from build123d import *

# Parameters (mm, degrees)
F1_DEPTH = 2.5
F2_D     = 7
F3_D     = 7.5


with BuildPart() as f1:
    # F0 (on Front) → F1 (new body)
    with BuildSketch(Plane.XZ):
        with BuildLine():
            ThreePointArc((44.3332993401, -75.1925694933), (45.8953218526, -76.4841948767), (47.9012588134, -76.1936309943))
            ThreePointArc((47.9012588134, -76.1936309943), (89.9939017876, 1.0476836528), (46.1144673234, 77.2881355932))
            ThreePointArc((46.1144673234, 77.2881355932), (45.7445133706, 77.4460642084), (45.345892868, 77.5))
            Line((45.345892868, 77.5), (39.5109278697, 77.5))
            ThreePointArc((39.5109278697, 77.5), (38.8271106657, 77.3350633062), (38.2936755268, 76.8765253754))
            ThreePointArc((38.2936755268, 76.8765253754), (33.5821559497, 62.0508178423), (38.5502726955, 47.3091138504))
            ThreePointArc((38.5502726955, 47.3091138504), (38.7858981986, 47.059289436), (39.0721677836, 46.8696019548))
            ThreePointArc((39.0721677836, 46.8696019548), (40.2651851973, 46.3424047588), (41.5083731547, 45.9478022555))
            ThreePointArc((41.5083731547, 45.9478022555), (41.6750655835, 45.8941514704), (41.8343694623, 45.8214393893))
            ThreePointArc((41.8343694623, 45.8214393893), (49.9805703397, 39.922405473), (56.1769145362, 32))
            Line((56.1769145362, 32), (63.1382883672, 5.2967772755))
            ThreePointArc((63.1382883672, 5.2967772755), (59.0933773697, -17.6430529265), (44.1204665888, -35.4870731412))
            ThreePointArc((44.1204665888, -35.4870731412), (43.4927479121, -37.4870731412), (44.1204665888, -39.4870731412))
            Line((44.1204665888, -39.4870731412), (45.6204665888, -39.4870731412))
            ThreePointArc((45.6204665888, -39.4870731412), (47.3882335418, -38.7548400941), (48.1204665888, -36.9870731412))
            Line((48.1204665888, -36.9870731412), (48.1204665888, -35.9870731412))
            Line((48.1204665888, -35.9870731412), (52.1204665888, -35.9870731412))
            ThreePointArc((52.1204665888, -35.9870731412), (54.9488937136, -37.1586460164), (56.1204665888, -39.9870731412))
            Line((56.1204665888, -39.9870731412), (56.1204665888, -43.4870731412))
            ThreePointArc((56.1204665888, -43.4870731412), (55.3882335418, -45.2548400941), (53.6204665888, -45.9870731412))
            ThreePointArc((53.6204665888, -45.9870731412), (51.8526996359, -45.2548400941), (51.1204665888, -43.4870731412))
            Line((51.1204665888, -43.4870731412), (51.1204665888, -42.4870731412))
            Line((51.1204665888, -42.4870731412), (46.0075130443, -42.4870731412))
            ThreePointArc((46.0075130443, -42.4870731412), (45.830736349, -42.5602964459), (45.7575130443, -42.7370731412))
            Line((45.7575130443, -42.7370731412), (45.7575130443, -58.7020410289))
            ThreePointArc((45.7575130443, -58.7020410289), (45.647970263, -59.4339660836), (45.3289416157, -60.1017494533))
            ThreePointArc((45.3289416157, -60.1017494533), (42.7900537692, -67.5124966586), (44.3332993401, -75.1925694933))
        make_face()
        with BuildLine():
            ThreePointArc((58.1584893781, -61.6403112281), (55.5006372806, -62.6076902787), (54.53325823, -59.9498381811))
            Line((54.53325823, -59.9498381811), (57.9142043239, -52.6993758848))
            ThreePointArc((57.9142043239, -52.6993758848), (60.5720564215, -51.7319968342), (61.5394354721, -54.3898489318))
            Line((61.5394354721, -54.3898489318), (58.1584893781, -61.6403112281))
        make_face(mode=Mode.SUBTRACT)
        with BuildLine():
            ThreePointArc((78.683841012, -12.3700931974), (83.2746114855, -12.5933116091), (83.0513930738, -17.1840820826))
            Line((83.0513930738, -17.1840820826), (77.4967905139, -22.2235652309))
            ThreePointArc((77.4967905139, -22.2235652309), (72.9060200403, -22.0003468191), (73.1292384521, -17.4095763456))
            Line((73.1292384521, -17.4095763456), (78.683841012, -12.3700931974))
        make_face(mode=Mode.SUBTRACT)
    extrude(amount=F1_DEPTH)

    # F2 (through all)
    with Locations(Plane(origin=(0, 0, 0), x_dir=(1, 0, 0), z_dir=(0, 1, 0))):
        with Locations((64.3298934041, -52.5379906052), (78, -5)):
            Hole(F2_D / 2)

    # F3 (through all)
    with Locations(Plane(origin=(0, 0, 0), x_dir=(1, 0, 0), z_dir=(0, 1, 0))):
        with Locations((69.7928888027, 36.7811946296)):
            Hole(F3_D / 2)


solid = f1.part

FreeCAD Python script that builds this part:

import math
import FreeCAD as App
import Part
import Sketcher
from FreeCAD import Vector
Q = App.Units.Quantity

doc = App.newDocument("Part")
body = doc.addObject("PartDesign::Body", "Body")

# Sketch on XZ plane
sketch1 = body.newObject("Sketcher::SketchObject", "Sketch")
sketch1.AttachmentSupport = (doc.getObject("XZ_Plane"), [""])
sketch1.MapMode = "FlatFace"
sketch1.addGeometry(Part.ArcOfCircle(Part.Circle(Vector(46.570668, -74.077141, 0), Vector(0, 0, 1), 2.5), math.radians(-153.501697), math.radians(-57.843329)), False)
sketch1.addGeometry(Part.ArcOfCircle(Part.Circle(Vector(0, 0, 0), Vector(0, 0, 1), 90), math.radians(-57.843329), math.radians(59.177311)), False)
sketch1.addGeometry(Part.ArcOfCircle(Part.Circle(Vector(45.345893, 76, 0), Vector(0, 0, 1), 1.5), math.radians(59.177311), math.radians(90)), False)
sketch1.addGeometry(Part.LineSegment(Vector(45.345893, 77.5, 0), Vector(39.510928, 77.5, 0)), False)
sketch1.addGeometry(Part.ArcOfCircle(Part.Circle(Vector(39.510928, 76, 0), Vector(0, 0, 1), 1.5), math.radians(90), math.radians(144.242899)), False)
sketch1.addGeometry(Part.ArcOfCircle(Part.Circle(Vector(58.581215, 62.267769, 0), Vector(0, 0, 1), 25), math.radians(144.242899), math.radians(216.751545)), False)
sketch1.addGeometry(Part.ArcOfCircle(Part.Circle(Vector(39.752129, 48.206633, 0), Vector(0, 0, 1), 1.5), math.radians(-143.248455), math.radians(-116.956096)), False)
sketch1.addGeometry(Part.ArcOfCircle(Part.Circle(Vector(44.511859, 57.565852, 0), Vector(0, 0, 1), 12), math.radians(-116.956096), math.radians(-104.494703)), False)
sketch1.addGeometry(Part.ArcOfCircle(Part.Circle(Vector(41.132937, 44.495546, 0), Vector(0, 0, 1), 1.5), math.radians(62.119995), math.radians(75.505297)), False)
sketch1.addGeometry(Part.ArcOfCircle(Part.Circle(Vector(25, 14, 0), Vector(0, 0, 1), 36), math.radians(30), math.radians(62.119995)), False)
sketch1.addGeometry(Part.LineSegment(Vector(56.176915, 32, 0), Vector(63.138288, 5.296777, 0)), False)
sketch1.addGeometry(Part.ArcOfCircle(Part.Circle(Vector(18.309527, 1.374769, 0), Vector(0, 0, 1), 45), math.radians(-55), math.radians(5)), False)
sketch1.addGeometry(Part.ArcOfCircle(Part.Circle(Vector(46.992748, -37.487073, 0), Vector(0, 0, 1), 3.5), math.radians(145.150095), math.radians(214.849905)), False)
sketch1.addGeometry(Part.LineSegment(Vector(44.120467, -39.487073, 0), Vector(45.620467, -39.487073, 0)), False)
sketch1.addGeometry(Part.ArcOfCircle(Part.Circle(Vector(45.620467, -36.987073, 0), Vector(0, 0, 1), 2.5), math.radians(-90), math.radians(0)), False)
sketch1.addGeometry(Part.LineSegment(Vector(48.120467, -36.987073, 0), Vector(48.120467, -35.987073, 0)), False)
sketch1.addGeometry(Part.LineSegment(Vector(48.120467, -35.987073, 0), Vector(52.120467, -35.987073, 0)), False)
sketch1.addGeometry(Part.ArcOfCircle(Part.Circle(Vector(52.120467, -39.987073, 0), Vector(0, 0, 1), 4), math.radians(0), math.radians(90)), False)
sketch1.addGeometry(Part.LineSegment(Vector(56.120467, -39.987073, 0), Vector(56.120467, -43.487073, 0)), False)
sketch1.addGeometry(Part.ArcOfCircle(Part.Circle(Vector(53.620467, -43.487073, 0), Vector(0, 0, 1), 2.5), math.radians(-90), math.radians(0)), False)
sketch1.addGeometry(Part.ArcOfCircle(Part.Circle(Vector(53.620467, -43.487073, 0), Vector(0, 0, 1), 2.5), math.radians(180), math.radians(270)), False)
sketch1.addGeometry(Part.LineSegment(Vector(51.120467, -43.487073, 0), Vector(51.120467, -42.487073, 0)), False)
sketch1.addGeometry(Part.LineSegment(Vector(51.120467, -42.487073, 0), Vector(46.007513, -42.487073, 0)), False)
sketch1.addGeometry(Part.ArcOfCircle(Part.Circle(Vector(46.007513, -42.737073, 0), Vector(0, 0, 1), 0.25), math.radians(90), math.radians(180)), False)
sketch1.addGeometry(Part.LineSegment(Vector(45.757513, -42.737073, 0), Vector(45.757513, -58.702041, 0)), False)
sketch1.addGeometry(Part.ArcOfCircle(Part.Circle(Vector(43.257513, -58.702041, 0), Vector(0, 0, 1), 2.5), math.radians(-34.047732), math.radians(0)), False)
sketch1.addGeometry(Part.ArcOfCircle(Part.Circle(Vector(57.757513, -68.5, 0), Vector(0, 0, 1), 15), math.radians(145.952268), math.radians(206.498303)), False)
sketch1.addGeometry(Part.LineSegment(Vector(61.539435, -54.389849, 0), Vector(58.158489, -61.640311, 0)), False)
sketch1.addGeometry(Part.ArcOfCircle(Part.Circle(Vector(56.345874, -60.795075, 0), Vector(0, 0, 1), 2), math.radians(155), math.radians(335)), False)
sketch1.addGeometry(Part.LineSegment(Vector(54.533258, -59.949838, 0), Vector(57.914204, -52.699376, 0)), False)
sketch1.addGeometry(Part.ArcOfCircle(Part.Circle(Vector(59.72682, -53.544612, 0), Vector(0, 0, 1), 2), math.radians(-25), math.radians(155)), False)
sketch1.addGeometry(Part.LineSegment(Vector(73.129238, -17.409576, 0), Vector(78.683841, -12.370093, 0)), False)
sketch1.addGeometry(Part.ArcOfCircle(Part.Circle(Vector(80.867617, -14.777088, 0), Vector(0, 0, 1), 3.25), math.radians(-47.783718), math.radians(132.216282)), False)
sketch1.addGeometry(Part.LineSegment(Vector(83.051393, -17.184082, 0), Vector(77.496791, -22.223565, 0)), False)
sketch1.addGeometry(Part.ArcOfCircle(Part.Circle(Vector(75.313014, -19.816571, 0), Vector(0, 0, 1), 3.25), math.radians(132.216283), math.radians(312.216282)), False)
sketch1.addConstraint(Sketcher.Constraint("Tangent", 0, 2, 1, 1))
sketch1.addConstraint(Sketcher.Constraint("Tangent", 1, 2, 2, 1))
sketch1.addConstraint(Sketcher.Constraint("Tangent", 2, 2, 3, 1))
sketch1.addConstraint(Sketcher.Constraint("Tangent", 3, 2, 4, 1))
sketch1.addConstraint(Sketcher.Constraint("Tangent", 4, 2, 5, 1))
sketch1.addConstraint(Sketcher.Constraint("Tangent", 5, 2, 6, 1))
sketch1.addConstraint(Sketcher.Constraint("Tangent", 6, 2, 7, 1))
sketch1.addConstraint(Sketcher.Constraint("Tangent", 7, 2, 8, 2))
sketch1.addConstraint(Sketcher.Constraint("Tangent", 8, 1, 9, 2))
sketch1.addConstraint(Sketcher.Constraint("Coincident", 9, 1, 10, 1))
sketch1.addConstraint(Sketcher.Constraint("Coincident", 10, 2, 11, 2))
sketch1.addConstraint(Sketcher.Constraint("Coincident", 11, 1, 12, 1))
sketch1.addConstraint(Sketcher.Constraint("Coincident", 12, 2, 13, 1))
sketch1.addConstraint(Sketcher.Constraint("Tangent", 13, 2, 14, 1))
sketch1.addConstraint(Sketcher.Constraint("Tangent", 14, 2, 15, 1))
sketch1.addConstraint(Sketcher.Constraint("Coincident", 15, 2, 16, 1))
sketch1.addConstraint(Sketcher.Constraint("Tangent", 16, 2, 17, 2))
sketch1.addConstraint(Sketcher.Constraint("Tangent", 17, 1, 18, 1))
sketch1.addConstraint(Sketcher.Constraint("Tangent", 18, 2, 19, 2))
sketch1.addConstraint(Sketcher.Constraint("Tangent", 19, 1, 20, 2))
sketch1.addConstraint(Sketcher.Constraint("Tangent", 20, 1, 21, 1))
sketch1.addConstraint(Sketcher.Constraint("Coincident", 21, 2, 22, 1))
sketch1.addConstraint(Sketcher.Constraint("Tangent", 22, 2, 23, 1))
sketch1.addConstraint(Sketcher.Constraint("Tangent", 23, 2, 24, 1))
sketch1.addConstraint(Sketcher.Constraint("Tangent", 24, 2, 25, 2))
sketch1.addConstraint(Sketcher.Constraint("Tangent", 25, 1, 26, 1))
sketch1.addConstraint(Sketcher.Constraint("Tangent", 26, 2, 0, 1))
sketch1.addConstraint(Sketcher.Constraint("Tangent", 27, 2, 28, 2))
sketch1.addConstraint(Sketcher.Constraint("Tangent", 28, 1, 29, 1))
sketch1.addConstraint(Sketcher.Constraint("Tangent", 29, 2, 30, 2))
sketch1.addConstraint(Sketcher.Constraint("Tangent", 30, 1, 27, 1))
sketch1.addConstraint(Sketcher.Constraint("Tangent", 31, 2, 32, 2))
sketch1.addConstraint(Sketcher.Constraint("Tangent", 32, 1, 33, 1))
sketch1.addConstraint(Sketcher.Constraint("Tangent", 33, 2, 34, 2))
sketch1.addConstraint(Sketcher.Constraint("Tangent", 34, 1, 31, 1))
sketch1.addConstraint(Sketcher.Constraint("Horizontal", 3))
sketch1.addConstraint(Sketcher.Constraint("Horizontal", 13))
sketch1.addConstraint(Sketcher.Constraint("Vertical", 15))
sketch1.addConstraint(Sketcher.Constraint("Horizontal", 16))
sketch1.addConstraint(Sketcher.Constraint("Vertical", 18))
sketch1.addConstraint(Sketcher.Constraint("Vertical", 21))
sketch1.addConstraint(Sketcher.Constraint("Horizontal", 22))
sketch1.addConstraint(Sketcher.Constraint("Vertical", 24))
sketch1.addConstraint(Sketcher.Constraint("Coincident", 1, 3, -1, 1))
sketch1.addConstraint(Sketcher.Constraint("Equal", 2, 4))
sketch1.addConstraint(Sketcher.Constraint("Equal", 4, 6))
sketch1.addConstraint(Sketcher.Constraint("Equal", 6, 8))
sketch1.addConstraint(Sketcher.Constraint("Equal", 0, 14))
sketch1.addConstraint(Sketcher.Constraint("Equal", 14, 19))
sketch1.addConstraint(Sketcher.Constraint("Equal", 19, 20))
sketch1.addConstraint(Sketcher.Constraint("Equal", 20, 25))
sketch1.addConstraint(Sketcher.Constraint("Equal", 28, 30))
sketch1.addConstraint(Sketcher.Constraint("Equal", 32, 34))
sketch1.addConstraint(Sketcher.Constraint("Vertical", 11, 1, 12, 2))
sketch1.addConstraint(Sketcher.Constraint("Vertical", 20, 3, 19, 1))
sketch1.addConstraint(Sketcher.Constraint("Equal", 15, 21))
sketch1.addConstraint(Sketcher.Constraint("Radius", 1, 90.0))
sketch1.addConstraint(Sketcher.Constraint("Radius", 5, 25.0))
sketch1.addConstraint(Sketcher.Constraint("Radius", 7, 12.0))
sketch1.addConstraint(Sketcher.Constraint("Radius", 9, 36.0))
sketch1.addConstraint(Sketcher.Constraint("Radius", 11, 45.0))
sketch1.addConstraint(Sketcher.Constraint("Radius", 17, 4.0))
sketch1.addConstraint(Sketcher.Constraint("Radius", 26, 15.0))
sketch1.addConstraint(Sketcher.Constraint("Radius", 28, 2.0))
sketch1.addConstraint(Sketcher.Constraint("Radius", 0, 2.5))
sketch1.addConstraint(Sketcher.Constraint("Radius", 2, 1.5))
sketch1.addConstraint(Sketcher.Constraint("Radius", 12, 3.5))
sketch1.addConstraint(Sketcher.Constraint("DistanceX", 16, 1, 16, 2, 4.0))
sketch1.addConstraint(Sketcher.Constraint("DistanceY", 15, 1, 15, 2, 1.0))
sketch1.addConstraint(Sketcher.Constraint("Angle", 27, Q("-115 deg")))
sketch1.addConstraint(Sketcher.Constraint("Radius", 23, 0.25))
sketch1.addConstraint(Sketcher.Constraint("Radius", 32, 3.25))
sketch1.addConstraint(Sketcher.Constraint("Distance", 27, 8.0))
sketch1.addConstraint(Sketcher.Constraint("DistanceX", 13, 1, 13, 2, 1.5))
sketch1.addConstraint(Sketcher.Constraint("DistanceY", 18, 2, 18, 1, 3.5))
sketch1.addConstraint(Sketcher.Constraint("DistanceY", -1, 1, 2, 3, 76.0))
sketch1.addConstraint(Sketcher.Constraint("DistanceX", -1, 1, 9, 3, 25.0))
sketch1.addConstraint(Sketcher.Constraint("DistanceY", -1, 1, 9, 3, 14.0))
sketch1.addConstraint(Sketcher.Constraint("DistanceY", -1, 1, 9, 1, 32.0))
sketch1.addConstraint(Sketcher.Constraint("DistanceY", 19, 3, 12, 3, 6.0))
sketch1.addConstraint(Sketcher.Constraint("Distance", 31, 7.5))
sketch1.addConstraint(Sketcher.Constraint("DistanceY", 26, 3, -1, 1, 68.5))
sketch1.addConstraint(Sketcher.Constraint("DistanceX", 25, 3, 26, 3, 14.5))
sketch1.addConstraint(Sketcher.Constraint("DistanceY", 28, 3, 19, 3, 17.308002))
sketch1.addConstraint(Sketcher.Constraint("DistanceY", -1, 1, 6, 2, 46.869602))
sketch1.addConstraint(Sketcher.Constraint("DistanceX", -1, 1, 26, 2, 44.333299))
sketch1.addConstraint(Sketcher.Constraint("DistanceX", 4, 3, 6, 3, 0.241201))
sketch1.addConstraint(Sketcher.Constraint("DistanceX", 14, 3, 0, 3, 0.950202))
sketch1.addConstraint(Sketcher.Constraint("DistanceY", 7, 2, 6, 2, 0.9218))
sketch1.addConstraint(Sketcher.Constraint("DistanceX", 5, 2, 7, 2, 2.9581))
sketch1.addConstraint(Sketcher.Constraint("DistanceY", 24, 2, 24, 1, 15.964968))
sketch1.addConstraint(Sketcher.Constraint("DistanceY", -1, 1, 11, 3, 1.374769))
sketch1.addConstraint(Sketcher.Constraint("DistanceX", -1, 1, 30, 3, 59.72682))
sketch1.addConstraint(Sketcher.Constraint("DistanceY", 34, 3, -1, 1, 19.816571))
sketch1.addConstraint(Sketcher.Constraint("DistanceX", -1, 1, 10, 2, 63.138288))
sketch1.addConstraint(Sketcher.Constraint("DistanceX", -1, 1, 31, 2, 78.683841))
sketch1.addConstraint(Sketcher.Constraint("DistanceX", -1, 1, 33, 2, 77.496791))
pad1 = body.newObject("PartDesign::Pad", "Pad")
pad1.Profile = sketch1
pad1.Length = 2.5

# Sketch on XZ plane
sketch2 = body.newObject("Sketcher::SketchObject", "Sketch001")
sketch2.AttachmentSupport = (doc.getObject("XZ_Plane"), [""])
sketch2.MapMode = "FlatFace"
sketch2.addGeometry(Part.Circle(Vector(64.329893, 52.537991, 0), Vector(0, 0, 1), 3.5), False)
sketch2.addGeometry(Part.Circle(Vector(78, 5, 0), Vector(0, 0, 1), 3.5), False)
sketch2.addConstraint(Sketcher.Constraint("Equal", 0, 1))
sketch2.addConstraint(Sketcher.Constraint("Diameter", 0, 7.0))
sketch2.addConstraint(Sketcher.Constraint("DistanceX", -1, 1, 1, 3, 78.0))
sketch2.addConstraint(Sketcher.Constraint("DistanceY", -1, 1, 1, 3, 5.0))
sketch2.addConstraint(Sketcher.Constraint("DistanceY", -1, 1, 0, 3, 52.537991))
sketch2.addConstraint(Sketcher.Constraint("DistanceX", -1, 1, 0, 3, 64.329893))
doc.recompute()
hole = body.newObject("PartDesign::Hole", "Hole")
hole.Profile = sketch2
hole.ThreadType = "None"
hole.Diameter = 7
hole.DepthType = "ThroughAll"
hole.Reversed = True

# Sketch on XZ plane
sketch3 = body.newObject("Sketcher::SketchObject", "Sketch002")
sketch3.AttachmentSupport = (doc.getObject("XZ_Plane"), [""])
sketch3.MapMode = "FlatFace"
sketch3.addGeometry(Part.Circle(Vector(69.792889, -36.781195, 0), Vector(0, 0, 1), 3.75), False)
sketch3.addConstraint(Sketcher.Constraint("Diameter", 0, 7.5))
sketch3.addConstraint(Sketcher.Constraint("DistanceX", -1, 1, 0, 3, 69.792889))
sketch3.addConstraint(Sketcher.Constraint("DistanceY", 0, 3, -1, 1, 36.781195))
doc.recompute()
hole2 = body.newObject("PartDesign::Hole", "Hole001")
hole2.Profile = sketch3
hole2.ThreadType = "None"
hole2.Diameter = 7.5
hole2.DepthType = "ThroughAll"
hole2.Reversed = True

doc.recompute()
